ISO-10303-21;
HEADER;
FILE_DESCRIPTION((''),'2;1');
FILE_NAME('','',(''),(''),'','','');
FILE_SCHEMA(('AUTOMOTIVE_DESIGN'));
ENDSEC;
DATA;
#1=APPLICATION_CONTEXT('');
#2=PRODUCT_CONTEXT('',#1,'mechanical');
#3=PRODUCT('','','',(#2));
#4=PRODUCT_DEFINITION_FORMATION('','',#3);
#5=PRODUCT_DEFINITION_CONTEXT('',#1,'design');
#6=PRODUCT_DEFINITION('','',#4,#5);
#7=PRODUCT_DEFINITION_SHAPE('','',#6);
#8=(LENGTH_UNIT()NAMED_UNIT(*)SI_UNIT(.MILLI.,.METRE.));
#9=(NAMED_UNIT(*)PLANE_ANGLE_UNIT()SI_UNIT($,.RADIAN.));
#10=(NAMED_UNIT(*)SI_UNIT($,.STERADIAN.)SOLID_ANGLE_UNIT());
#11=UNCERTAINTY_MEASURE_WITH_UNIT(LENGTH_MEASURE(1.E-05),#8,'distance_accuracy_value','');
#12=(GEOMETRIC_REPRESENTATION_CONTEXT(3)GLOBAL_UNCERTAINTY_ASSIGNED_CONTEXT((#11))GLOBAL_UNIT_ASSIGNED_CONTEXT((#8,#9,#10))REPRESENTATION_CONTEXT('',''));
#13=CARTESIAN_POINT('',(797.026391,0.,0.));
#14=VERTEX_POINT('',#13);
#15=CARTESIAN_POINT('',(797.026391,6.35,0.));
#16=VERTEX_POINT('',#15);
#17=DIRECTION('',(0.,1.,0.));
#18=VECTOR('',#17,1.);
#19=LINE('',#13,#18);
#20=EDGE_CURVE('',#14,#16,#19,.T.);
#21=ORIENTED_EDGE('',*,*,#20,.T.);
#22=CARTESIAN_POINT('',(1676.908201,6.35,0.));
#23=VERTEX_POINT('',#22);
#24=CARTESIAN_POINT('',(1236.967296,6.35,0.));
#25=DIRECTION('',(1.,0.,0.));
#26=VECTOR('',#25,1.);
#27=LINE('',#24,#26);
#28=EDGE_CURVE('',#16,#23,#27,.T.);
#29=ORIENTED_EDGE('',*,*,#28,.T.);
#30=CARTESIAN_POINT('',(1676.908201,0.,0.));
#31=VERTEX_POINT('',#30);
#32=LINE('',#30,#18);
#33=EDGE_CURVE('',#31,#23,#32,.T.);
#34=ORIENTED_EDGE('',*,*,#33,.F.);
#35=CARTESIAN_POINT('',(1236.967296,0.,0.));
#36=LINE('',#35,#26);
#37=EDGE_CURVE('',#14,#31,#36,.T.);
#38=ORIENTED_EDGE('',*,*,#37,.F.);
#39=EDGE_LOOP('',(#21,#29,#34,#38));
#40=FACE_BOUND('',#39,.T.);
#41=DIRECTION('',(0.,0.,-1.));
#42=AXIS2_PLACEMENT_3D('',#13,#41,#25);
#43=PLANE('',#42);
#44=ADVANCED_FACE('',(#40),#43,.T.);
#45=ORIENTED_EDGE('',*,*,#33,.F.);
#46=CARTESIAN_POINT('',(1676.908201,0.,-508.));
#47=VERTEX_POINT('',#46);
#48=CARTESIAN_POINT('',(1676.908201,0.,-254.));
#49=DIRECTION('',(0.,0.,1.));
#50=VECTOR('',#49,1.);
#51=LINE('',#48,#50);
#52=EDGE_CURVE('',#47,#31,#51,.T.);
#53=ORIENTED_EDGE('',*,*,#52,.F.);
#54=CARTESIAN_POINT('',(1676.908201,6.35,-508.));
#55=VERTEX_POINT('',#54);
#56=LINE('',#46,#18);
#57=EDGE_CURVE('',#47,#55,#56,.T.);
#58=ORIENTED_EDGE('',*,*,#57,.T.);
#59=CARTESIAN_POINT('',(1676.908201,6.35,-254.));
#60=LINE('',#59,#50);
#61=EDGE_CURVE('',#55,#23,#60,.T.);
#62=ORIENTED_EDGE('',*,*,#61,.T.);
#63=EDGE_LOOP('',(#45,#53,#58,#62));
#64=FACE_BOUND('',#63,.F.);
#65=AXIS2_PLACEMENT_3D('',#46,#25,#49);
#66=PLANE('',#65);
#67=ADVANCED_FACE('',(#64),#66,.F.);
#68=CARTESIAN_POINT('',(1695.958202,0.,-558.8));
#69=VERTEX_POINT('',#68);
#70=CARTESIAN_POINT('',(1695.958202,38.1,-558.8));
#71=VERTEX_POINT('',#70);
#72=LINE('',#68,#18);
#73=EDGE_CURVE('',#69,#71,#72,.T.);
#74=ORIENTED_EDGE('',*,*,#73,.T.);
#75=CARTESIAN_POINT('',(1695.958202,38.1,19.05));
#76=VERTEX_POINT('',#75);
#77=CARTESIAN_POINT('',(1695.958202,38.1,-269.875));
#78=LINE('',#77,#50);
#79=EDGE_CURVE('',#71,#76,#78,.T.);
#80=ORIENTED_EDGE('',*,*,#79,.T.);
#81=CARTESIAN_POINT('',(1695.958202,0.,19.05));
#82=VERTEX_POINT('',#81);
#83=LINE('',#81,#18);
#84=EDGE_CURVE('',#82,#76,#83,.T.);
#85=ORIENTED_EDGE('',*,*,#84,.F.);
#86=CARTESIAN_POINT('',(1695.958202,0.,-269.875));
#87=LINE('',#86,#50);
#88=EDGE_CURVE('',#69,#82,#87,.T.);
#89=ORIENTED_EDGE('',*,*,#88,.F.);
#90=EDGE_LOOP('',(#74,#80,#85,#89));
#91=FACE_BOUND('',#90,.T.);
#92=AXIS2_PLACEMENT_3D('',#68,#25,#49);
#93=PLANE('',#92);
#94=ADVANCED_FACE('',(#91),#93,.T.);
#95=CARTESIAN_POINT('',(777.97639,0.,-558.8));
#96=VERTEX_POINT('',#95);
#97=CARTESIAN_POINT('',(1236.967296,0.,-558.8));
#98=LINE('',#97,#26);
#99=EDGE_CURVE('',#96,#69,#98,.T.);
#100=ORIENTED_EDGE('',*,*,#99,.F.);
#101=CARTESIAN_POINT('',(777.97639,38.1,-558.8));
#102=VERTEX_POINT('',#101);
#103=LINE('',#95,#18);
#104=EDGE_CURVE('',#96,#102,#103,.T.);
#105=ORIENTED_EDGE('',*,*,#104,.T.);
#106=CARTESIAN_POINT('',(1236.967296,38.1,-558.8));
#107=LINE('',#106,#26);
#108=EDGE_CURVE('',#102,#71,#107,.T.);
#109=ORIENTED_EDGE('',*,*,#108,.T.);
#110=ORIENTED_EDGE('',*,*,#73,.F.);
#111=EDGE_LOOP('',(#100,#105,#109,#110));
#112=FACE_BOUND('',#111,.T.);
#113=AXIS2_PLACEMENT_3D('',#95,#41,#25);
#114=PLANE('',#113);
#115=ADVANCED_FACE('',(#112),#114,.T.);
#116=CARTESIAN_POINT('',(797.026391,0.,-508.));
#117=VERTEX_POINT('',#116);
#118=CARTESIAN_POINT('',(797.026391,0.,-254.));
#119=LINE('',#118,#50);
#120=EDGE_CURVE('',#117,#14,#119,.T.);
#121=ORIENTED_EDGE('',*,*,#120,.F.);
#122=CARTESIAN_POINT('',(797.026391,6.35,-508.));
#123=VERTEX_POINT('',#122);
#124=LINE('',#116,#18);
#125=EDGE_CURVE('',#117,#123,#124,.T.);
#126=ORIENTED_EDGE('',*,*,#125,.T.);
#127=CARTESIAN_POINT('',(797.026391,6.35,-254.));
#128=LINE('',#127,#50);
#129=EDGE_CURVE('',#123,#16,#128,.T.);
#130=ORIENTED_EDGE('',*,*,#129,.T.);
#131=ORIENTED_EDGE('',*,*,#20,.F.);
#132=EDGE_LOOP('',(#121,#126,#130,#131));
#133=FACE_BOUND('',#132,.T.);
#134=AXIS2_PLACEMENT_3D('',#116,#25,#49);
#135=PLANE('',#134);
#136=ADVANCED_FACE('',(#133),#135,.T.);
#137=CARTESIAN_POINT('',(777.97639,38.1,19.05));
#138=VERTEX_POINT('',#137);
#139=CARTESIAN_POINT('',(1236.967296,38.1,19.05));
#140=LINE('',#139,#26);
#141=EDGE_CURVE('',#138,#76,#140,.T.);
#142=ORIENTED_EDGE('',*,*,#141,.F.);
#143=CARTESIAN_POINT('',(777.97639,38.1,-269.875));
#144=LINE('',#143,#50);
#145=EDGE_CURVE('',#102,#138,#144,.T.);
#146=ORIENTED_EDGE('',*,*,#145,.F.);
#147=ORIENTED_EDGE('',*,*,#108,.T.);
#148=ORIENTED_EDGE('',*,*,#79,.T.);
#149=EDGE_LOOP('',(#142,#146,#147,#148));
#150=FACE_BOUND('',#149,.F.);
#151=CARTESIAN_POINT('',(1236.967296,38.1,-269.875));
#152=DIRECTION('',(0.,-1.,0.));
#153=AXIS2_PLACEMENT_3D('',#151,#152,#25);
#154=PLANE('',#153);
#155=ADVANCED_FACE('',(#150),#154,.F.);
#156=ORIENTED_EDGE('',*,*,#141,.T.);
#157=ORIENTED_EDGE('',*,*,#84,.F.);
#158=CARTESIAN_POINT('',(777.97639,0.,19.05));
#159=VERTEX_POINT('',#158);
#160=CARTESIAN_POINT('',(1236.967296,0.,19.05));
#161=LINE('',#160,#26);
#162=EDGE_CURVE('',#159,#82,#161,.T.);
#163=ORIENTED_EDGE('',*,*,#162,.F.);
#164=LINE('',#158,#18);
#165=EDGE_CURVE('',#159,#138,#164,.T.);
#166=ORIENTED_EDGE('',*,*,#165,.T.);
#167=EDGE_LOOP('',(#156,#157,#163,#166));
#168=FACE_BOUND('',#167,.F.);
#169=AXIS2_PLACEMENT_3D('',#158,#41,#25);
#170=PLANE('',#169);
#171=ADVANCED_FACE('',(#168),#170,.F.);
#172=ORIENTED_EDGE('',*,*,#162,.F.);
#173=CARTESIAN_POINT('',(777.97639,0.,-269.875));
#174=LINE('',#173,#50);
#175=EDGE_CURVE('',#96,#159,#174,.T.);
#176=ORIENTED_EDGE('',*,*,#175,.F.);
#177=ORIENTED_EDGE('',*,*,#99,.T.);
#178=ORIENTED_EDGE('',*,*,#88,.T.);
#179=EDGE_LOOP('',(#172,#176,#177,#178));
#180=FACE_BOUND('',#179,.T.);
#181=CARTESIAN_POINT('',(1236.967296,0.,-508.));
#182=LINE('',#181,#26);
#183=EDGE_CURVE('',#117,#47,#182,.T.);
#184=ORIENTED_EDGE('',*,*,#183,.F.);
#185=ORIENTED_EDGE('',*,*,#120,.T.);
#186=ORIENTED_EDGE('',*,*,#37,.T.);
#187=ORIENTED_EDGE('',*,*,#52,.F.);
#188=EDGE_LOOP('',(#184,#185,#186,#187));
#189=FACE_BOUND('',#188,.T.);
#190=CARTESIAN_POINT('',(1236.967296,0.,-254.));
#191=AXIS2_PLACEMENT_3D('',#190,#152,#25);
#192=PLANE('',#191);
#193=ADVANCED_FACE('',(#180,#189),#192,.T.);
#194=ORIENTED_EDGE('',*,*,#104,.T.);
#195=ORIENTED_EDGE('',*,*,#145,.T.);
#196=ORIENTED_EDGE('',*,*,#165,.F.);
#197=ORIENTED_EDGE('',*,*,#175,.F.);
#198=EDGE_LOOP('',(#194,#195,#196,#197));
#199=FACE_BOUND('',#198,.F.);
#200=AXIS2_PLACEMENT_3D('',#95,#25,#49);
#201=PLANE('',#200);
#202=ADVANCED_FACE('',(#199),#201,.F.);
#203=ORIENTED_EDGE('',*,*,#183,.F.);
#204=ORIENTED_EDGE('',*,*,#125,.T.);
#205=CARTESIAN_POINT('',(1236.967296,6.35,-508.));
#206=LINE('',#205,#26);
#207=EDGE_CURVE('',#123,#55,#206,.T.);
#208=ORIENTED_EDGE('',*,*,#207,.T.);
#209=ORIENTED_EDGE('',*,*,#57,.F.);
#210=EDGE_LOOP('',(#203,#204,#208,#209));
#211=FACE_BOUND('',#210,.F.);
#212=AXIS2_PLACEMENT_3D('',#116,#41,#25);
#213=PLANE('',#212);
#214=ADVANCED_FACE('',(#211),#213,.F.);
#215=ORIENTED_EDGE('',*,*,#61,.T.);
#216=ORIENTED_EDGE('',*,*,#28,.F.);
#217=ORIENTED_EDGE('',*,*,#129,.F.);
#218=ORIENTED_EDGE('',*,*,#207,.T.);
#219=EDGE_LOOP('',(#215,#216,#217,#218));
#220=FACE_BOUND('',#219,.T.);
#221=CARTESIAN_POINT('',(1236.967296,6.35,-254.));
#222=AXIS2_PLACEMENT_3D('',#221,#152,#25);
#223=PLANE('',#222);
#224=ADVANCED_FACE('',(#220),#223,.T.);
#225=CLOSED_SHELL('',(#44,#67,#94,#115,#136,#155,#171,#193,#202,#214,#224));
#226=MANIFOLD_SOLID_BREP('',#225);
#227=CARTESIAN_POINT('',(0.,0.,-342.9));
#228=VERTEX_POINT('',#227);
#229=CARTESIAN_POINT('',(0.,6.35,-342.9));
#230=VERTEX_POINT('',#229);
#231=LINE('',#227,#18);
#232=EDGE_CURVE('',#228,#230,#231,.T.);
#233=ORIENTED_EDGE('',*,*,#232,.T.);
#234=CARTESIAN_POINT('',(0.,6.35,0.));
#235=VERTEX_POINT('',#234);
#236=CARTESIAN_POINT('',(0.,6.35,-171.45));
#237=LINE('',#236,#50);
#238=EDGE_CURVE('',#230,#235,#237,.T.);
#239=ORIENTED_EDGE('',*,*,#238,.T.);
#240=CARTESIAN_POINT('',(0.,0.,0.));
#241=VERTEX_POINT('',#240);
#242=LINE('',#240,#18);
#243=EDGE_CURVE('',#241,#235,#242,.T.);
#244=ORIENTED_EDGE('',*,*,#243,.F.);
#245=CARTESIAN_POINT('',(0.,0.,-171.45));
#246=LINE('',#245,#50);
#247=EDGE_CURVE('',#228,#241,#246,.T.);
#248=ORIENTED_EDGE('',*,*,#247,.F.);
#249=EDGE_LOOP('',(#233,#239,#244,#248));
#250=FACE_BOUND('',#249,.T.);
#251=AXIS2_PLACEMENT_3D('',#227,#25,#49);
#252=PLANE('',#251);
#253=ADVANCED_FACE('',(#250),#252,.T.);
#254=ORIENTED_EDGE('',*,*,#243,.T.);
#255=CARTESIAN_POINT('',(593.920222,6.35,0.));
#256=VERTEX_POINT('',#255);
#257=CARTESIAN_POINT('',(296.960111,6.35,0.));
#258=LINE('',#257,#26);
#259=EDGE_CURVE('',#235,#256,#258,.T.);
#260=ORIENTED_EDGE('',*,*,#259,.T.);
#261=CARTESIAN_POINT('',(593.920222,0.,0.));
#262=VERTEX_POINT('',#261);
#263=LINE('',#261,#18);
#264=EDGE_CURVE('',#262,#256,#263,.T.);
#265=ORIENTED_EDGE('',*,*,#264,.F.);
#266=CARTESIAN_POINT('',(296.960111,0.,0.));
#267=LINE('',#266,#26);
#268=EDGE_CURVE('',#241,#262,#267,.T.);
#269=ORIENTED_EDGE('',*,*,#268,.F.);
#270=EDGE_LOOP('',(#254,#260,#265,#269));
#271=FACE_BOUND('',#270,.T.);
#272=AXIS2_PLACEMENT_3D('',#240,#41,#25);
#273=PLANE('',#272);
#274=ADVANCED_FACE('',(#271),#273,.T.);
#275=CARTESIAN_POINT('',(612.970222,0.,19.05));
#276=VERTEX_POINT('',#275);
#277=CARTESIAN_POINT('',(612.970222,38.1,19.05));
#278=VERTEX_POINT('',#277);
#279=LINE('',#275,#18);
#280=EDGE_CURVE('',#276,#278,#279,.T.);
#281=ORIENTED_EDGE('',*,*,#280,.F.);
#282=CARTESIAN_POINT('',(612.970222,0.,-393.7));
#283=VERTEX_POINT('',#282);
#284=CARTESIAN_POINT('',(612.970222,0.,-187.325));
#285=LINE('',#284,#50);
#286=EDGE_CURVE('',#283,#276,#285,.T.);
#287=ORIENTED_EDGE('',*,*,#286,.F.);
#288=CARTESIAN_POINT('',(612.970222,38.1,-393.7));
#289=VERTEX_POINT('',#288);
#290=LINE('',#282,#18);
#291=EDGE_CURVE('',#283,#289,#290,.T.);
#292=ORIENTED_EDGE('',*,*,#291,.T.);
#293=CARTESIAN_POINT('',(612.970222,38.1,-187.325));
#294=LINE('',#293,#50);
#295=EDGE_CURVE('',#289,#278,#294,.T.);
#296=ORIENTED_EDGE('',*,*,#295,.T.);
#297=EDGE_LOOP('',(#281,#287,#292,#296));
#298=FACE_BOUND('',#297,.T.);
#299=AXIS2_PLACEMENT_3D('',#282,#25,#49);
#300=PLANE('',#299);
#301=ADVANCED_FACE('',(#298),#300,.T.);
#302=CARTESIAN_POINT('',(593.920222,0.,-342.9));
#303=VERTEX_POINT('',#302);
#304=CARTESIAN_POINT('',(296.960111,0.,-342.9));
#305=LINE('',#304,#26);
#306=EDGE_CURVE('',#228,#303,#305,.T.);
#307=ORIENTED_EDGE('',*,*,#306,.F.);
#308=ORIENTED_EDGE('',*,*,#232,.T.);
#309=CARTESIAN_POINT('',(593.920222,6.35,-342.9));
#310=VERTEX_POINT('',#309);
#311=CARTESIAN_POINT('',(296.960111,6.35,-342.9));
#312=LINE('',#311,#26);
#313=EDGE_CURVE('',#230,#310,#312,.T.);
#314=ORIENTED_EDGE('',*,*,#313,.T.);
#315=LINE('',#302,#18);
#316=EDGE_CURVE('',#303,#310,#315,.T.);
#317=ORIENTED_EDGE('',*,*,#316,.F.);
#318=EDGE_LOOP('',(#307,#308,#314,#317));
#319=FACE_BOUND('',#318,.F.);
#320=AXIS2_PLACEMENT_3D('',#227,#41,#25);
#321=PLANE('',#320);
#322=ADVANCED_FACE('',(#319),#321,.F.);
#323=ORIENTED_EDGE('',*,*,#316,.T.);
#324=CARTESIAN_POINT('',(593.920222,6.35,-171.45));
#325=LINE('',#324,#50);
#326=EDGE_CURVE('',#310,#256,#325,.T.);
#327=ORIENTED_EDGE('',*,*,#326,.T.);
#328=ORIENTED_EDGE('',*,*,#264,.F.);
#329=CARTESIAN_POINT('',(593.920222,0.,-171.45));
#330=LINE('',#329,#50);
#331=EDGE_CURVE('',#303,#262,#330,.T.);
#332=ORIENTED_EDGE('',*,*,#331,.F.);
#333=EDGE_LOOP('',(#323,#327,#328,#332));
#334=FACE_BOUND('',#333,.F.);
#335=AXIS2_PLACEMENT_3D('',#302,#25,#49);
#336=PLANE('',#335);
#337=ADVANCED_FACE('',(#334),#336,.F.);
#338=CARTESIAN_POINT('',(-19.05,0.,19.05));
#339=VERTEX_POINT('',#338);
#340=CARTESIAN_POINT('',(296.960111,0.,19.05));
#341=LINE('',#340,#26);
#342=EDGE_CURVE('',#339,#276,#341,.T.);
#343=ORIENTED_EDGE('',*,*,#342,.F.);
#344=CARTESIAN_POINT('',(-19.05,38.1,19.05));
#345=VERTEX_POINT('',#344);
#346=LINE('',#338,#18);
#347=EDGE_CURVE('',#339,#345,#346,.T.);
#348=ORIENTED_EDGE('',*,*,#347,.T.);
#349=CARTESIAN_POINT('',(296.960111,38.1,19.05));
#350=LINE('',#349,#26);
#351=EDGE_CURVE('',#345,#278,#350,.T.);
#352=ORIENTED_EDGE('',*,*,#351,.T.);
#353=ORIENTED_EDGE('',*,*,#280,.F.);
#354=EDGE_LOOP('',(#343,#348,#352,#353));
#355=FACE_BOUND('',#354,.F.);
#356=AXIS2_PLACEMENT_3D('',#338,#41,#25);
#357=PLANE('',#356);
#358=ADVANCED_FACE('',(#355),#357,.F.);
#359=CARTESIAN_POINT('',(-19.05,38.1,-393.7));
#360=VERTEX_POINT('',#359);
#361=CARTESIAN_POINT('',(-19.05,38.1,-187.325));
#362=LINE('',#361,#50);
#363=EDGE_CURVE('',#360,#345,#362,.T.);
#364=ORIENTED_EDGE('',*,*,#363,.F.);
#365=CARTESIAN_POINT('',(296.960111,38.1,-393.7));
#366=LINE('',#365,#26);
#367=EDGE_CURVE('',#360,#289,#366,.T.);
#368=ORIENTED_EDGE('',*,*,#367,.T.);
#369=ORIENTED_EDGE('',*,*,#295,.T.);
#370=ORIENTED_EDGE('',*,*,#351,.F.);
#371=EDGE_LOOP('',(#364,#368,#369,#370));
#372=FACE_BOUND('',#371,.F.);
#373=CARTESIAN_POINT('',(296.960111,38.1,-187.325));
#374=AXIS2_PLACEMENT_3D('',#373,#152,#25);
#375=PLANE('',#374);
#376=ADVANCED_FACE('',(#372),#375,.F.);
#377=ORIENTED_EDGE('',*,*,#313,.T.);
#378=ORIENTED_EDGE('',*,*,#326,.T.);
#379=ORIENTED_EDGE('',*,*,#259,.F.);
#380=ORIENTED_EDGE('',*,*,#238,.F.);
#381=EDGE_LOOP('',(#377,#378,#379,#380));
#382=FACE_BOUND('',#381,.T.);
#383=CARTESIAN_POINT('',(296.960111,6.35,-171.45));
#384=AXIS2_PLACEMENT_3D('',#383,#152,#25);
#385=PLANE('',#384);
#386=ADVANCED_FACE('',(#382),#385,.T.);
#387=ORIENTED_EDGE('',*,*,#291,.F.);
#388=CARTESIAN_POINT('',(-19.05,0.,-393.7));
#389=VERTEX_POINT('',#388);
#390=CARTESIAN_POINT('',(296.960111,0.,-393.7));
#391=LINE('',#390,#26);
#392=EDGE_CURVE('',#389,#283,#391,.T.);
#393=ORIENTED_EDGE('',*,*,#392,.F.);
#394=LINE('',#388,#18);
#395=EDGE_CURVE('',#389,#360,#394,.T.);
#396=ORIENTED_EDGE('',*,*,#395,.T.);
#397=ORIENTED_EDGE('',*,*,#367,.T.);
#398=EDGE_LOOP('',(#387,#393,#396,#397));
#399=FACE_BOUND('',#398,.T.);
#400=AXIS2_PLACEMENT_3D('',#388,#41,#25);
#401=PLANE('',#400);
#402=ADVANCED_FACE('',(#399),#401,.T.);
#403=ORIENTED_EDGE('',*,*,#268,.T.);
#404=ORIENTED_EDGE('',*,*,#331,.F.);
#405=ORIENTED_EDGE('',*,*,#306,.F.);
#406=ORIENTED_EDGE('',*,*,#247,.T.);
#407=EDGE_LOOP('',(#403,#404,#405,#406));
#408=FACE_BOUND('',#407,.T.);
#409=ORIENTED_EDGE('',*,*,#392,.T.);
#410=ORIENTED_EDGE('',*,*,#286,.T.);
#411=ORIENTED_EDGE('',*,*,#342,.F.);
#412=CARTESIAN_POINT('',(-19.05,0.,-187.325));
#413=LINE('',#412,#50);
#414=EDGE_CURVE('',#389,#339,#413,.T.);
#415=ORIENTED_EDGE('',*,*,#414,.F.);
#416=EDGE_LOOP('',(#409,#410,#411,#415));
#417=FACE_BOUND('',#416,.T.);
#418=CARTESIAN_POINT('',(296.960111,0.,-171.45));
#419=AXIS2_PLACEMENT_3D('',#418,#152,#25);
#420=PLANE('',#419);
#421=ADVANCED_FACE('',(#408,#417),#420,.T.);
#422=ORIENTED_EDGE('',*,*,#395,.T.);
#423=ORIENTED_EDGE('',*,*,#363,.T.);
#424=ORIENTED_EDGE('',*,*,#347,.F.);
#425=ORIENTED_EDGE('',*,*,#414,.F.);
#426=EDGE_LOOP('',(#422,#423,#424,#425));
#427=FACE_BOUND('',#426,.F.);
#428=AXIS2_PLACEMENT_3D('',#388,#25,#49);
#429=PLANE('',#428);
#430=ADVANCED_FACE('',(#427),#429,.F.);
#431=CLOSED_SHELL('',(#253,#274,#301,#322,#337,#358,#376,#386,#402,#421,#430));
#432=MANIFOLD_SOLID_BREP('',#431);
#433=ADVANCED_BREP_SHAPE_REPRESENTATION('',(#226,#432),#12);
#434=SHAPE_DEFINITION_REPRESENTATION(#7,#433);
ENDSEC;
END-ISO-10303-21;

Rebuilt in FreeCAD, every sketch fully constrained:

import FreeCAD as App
import Part
import Sketcher
from FreeCAD import Vector
Q = App.Units.Quantity


def add_polygon(sketch, points):
    """Adds a closed chain of lines whose ends are joined by coincident constraints."""
    first, n = sketch.GeometryCount, len(points)
    for a, b in zip(points, points[1:] + points[:1]):
        sketch.addGeometry(Part.LineSegment(App.Vector(*a, 0), App.Vector(*b, 0)), False)
    for i in range(n):
        sketch.addConstraint(Sketcher.Constraint("Coincident", first + i, 2, first + (i + 1) % n, 1))

doc = App.newDocument("Part")
body = doc.addObject("PartDesign::Body", "Body")
body.AllowCompound = True

sketch1 = body.newObject("Sketcher::SketchObject", "Sketch")
sketch1.AttachmentSupport = (doc.getObject("XZ_Plane"), [""])
sketch1.MapMode = "FlatFace"
add_polygon(sketch1, [(-19, 19), (-19, -394), (613, -394), (613, 19)])
add_polygon(sketch1, [(594, -343), (0, -343), (0, 0), (594, 0)])
add_polygon(sketch1, [(778, 19), (778, -559), (1696, -559), (1696, 19)])
add_polygon(sketch1, [(1677, -508), (797, -508), (797, 0), (1677, 0)])
sketch1.addConstraint(Sketcher.Constraint("Vertical", 0))
sketch1.addConstraint(Sketcher.Constraint("Horizontal", 1))
sketch1.addConstraint(Sketcher.Constraint("Vertical", 2))
sketch1.addConstraint(Sketcher.Constraint("Horizontal", 3))
sketch1.addConstraint(Sketcher.Constraint("Horizontal", 4))
sketch1.addConstraint(Sketcher.Constraint("Vertical", 5))
sketch1.addConstraint(Sketcher.Constraint("Horizontal", 6))
sketch1.addConstraint(Sketcher.Constraint("Vertical", 7))
sketch1.addConstraint(Sketcher.Constraint("Vertical", 8))
sketch1.addConstraint(Sketcher.Constraint("Horizontal", 9))
sketch1.addConstraint(Sketcher.Constraint("Vertical", 10))
sketch1.addConstraint(Sketcher.Constraint("Horizontal", 11))
sketch1.addConstraint(Sketcher.Constraint("Horizontal", 12))
sketch1.addConstraint(Sketcher.Constraint("Vertical", 13))
sketch1.addConstraint(Sketcher.Constraint("Horizontal", 14))
sketch1.addConstraint(Sketcher.Constraint("Vertical", 15))
sketch1.addConstraint(Sketcher.Constraint("Coincident", 5, 2, -1, 1))
sketch1.addConstraint(Sketcher.Constraint("PointOnObject", 13, 2, -1))
sketch1.addConstraint(Sketcher.Constraint("Horizontal", 3, 2, 10, 2))
sketch1.addConstraint(Sketcher.Constraint("DistanceY", 13, 1, 13, 2, Q("20 in")))
sketch1.addConstraint(Sketcher.Constraint("DistanceY", 5, 1, 5, 2, Q("13.5 in")))
sketch1.addConstraint(Sketcher.Constraint("DistanceY", 8, 2, -1, 1, Q("22 in")))
sketch1.addConstraint(Sketcher.Constraint("DistanceY", 0, 2, 4, 2, Q("2 in")))
sketch1.addConstraint(Sketcher.Constraint("DistanceY", 0, 2, 0, 1, Q("16.25 in")))
sketch1.addConstraint(Sketcher.Constraint("DistanceX", 0, 2, -1, 1, Q("0.75 in")))
sketch1.addConstraint(Sketcher.Constraint("DistanceX", 6, 2, 2, 2, Q("0.75 in")))
sketch1.addConstraint(Sketcher.Constraint("DistanceX", 8, 2, 12, 2, Q("0.75 in")))
sketch1.addConstraint(Sketcher.Constraint("DistanceX", 14, 2, 10, 2, Q("0.75 in")))
sketch1.addConstraint(Sketcher.Constraint("DistanceX", 1, 1, 1, 2, 632.020222))
sketch1.addConstraint(Sketcher.Constraint("DistanceX", 9, 1, 9, 2, 917.981811))
sketch1.addConstraint(Sketcher.Constraint("DistanceX", -1, 1, 9, 2, 1695.958202))
pad1 = body.newObject("PartDesign::Pad", "Pad")
pad1.Profile = sketch1
pad1.Length = Q("1.5 in")
pad1.Reversed = True

sketch2 = body.newObject("Sketcher::SketchObject", "Sketch001")
sketch2.AttachmentSupport = (doc.getObject("XZ_Plane"), [""])
sketch2.MapMode = "FlatFace"
add_polygon(sketch2, [(0, 0), (0, -343), (594, -343), (594, 0)])
add_polygon(sketch2, [(797, 0), (797, -508), (1677, -508), (1677, 0)])
sketch2.addConstraint(Sketcher.Constraint("Vertical", 0))
sketch2.addConstraint(Sketcher.Constraint("Horizontal", 1))
sketch2.addConstraint(Sketcher.Constraint("Vertical", 2))
sketch2.addConstraint(Sketcher.Constraint("Horizontal", 3))
sketch2.addConstraint(Sketcher.Constraint("Vertical", 4))
sketch2.addConstraint(Sketcher.Constraint("Horizontal", 5))
sketch2.addConstraint(Sketcher.Constraint("Vertical", 6))
sketch2.addConstraint(Sketcher.Constraint("Horizontal", 7))
sketch2.addConstraint(Sketcher.Constraint("Coincident", 3, 2, -1, 1))
sketch2.addConstraint(Sketcher.Constraint("PointOnObject", 6, 2, -1))
sketch2.addConstraint(Sketcher.Constraint("DistanceY", 4, 2, 4, 1, Q("20 in")))
sketch2.addConstraint(Sketcher.Constraint("DistanceY", 0, 2, 0, 1, Q("13.5 in")))
sketch2.addConstraint(Sketcher.Constraint("DistanceX", 1, 1, 1, 2, 593.920222))
sketch2.addConstraint(Sketcher.Constraint("DistanceX", 5, 1, 5, 2, 879.881811))
sketch2.addConstraint(Sketcher.Constraint("DistanceX", -1, 1, 5, 2, 1676.908201))
pad2 = body.newObject("PartDesign::Pad", "Pad001")
pad2.Profile = sketch2
pad2.Length = Q("1.5 in")
pad2.Reversed = True

sketch3 = body.newObject("Sketcher::SketchObject", "Sketch002")
sketch3.AttachmentSupport = (doc.getObject("XZ_Plane"), [""])
sketch3.MapMode = "FlatFace"
add_polygon(sketch3, [(0, 0), (0, -343), (594, -343), (594, 0)])
add_polygon(sketch3, [(797, 0), (797, -508), (1677, -508), (1677, 0)])
sketch3.addConstraint(Sketcher.Constraint("Vertical", 0))
sketch3.addConstraint(Sketcher.Constraint("Horizontal", 1))
sketch3.addConstraint(Sketcher.Constraint("Vertical", 2))
sketch3.addConstraint(Sketcher.Constraint("Horizontal", 3))
sketch3.addConstraint(Sketcher.Constraint("Vertical", 4))
sketch3.addConstraint(Sketcher.Constraint("Horizontal", 5))
sketch3.addConstraint(Sketcher.Constraint("Vertical", 6))
sketch3.addConstraint(Sketcher.Constraint("Horizontal", 7))
sketch3.addConstraint(Sketcher.Constraint("Coincident", 3, 2, -1, 1))
sketch3.addConstraint(Sketcher.Constraint("PointOnObject", 6, 2, -1))
sketch3.addConstraint(Sketcher.Constraint("DistanceY", 4, 2, 4, 1, Q("20 in")))
sketch3.addConstraint(Sketcher.Constraint("DistanceY", 0, 2, 0, 1, Q("13.5 in")))
sketch3.addConstraint(Sketcher.Constraint("DistanceX", 1, 1, 1, 2, 593.920222))
sketch3.addConstraint(Sketcher.Constraint("DistanceX", 5, 1, 5, 2, 879.881811))
sketch3.addConstraint(Sketcher.Constraint("DistanceX", -1, 1, 5, 2, 1676.908201))
pocket1 = body.newObject("PartDesign::Pocket", "Pocket")
pocket1.Profile = sketch3
pocket1.Length = Q("0.25 in")

doc.recompute()
